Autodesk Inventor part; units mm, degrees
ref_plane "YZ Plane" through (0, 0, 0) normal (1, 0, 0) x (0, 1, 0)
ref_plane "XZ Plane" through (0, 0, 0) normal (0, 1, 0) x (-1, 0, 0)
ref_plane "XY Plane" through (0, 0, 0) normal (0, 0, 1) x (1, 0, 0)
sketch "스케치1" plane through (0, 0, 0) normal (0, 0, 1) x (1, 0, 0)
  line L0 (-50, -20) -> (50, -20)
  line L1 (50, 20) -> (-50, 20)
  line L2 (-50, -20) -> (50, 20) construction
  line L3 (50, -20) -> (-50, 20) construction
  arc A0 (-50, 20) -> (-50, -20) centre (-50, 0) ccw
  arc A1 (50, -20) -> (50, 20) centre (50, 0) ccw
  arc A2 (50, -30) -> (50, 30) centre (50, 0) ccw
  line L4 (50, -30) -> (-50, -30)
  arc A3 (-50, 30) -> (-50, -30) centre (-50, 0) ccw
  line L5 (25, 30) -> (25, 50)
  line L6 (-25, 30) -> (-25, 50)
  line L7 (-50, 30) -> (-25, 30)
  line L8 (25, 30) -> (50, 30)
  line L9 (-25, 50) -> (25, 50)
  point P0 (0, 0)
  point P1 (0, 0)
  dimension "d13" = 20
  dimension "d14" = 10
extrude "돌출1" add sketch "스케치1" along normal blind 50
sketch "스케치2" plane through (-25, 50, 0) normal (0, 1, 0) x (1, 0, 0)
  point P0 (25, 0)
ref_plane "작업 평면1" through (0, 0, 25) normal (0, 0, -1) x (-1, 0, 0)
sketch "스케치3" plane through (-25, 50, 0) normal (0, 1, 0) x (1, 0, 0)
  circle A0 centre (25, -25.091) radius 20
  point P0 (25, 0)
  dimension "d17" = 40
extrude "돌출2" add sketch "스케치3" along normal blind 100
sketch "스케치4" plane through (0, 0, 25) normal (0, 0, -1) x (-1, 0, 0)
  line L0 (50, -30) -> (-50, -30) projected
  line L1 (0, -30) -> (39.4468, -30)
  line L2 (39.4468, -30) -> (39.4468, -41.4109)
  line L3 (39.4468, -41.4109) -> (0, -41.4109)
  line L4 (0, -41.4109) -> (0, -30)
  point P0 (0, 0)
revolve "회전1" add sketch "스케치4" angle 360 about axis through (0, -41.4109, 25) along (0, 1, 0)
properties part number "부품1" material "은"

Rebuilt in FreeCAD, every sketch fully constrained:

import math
import FreeCAD as App
import Part
import Sketcher

V = App.Vector
Q = App.Units.Quantity

doc = App.newDocument("Part")
body = doc.addObject("PartDesign::Body", "Body")

# Sketch on XY plane
sketch1 = body.newObject("Sketcher::SketchObject", "Sketch")
sketch1.AttachmentSupport = (doc.getObject("XY_Plane"), [""])
sketch1.MapMode = "FlatFace"
sketch1.addGeometry(Part.LineSegment(V(-50, -30, 0), V(50, -30, 0)), False)
sketch1.addGeometry(Part.ArcOfCircle(Part.Circle(V(50, 0, 0), V(0, 0, 1), 30), math.radians(-90), math.radians(90)), False)
sketch1.addGeometry(Part.LineSegment(V(50, 30, 0), V(25, 30, 0)), False)
sketch1.addGeometry(Part.LineSegment(V(25, 30, 0), V(25, 50, 0)), False)
sketch1.addGeometry(Part.LineSegment(V(25, 50, 0), V(-25, 50, 0)), False)
sketch1.addGeometry(Part.LineSegment(V(-25, 50, 0), V(-25, 30, 0)), False)
sketch1.addGeometry(Part.LineSegment(V(-25, 30, 0), V(-50, 30, 0)), False)
sketch1.addGeometry(Part.ArcOfCircle(Part.Circle(V(-50, 0, 0), V(0, 0, 1), 30), math.radians(90), math.radians(270)), False)
sketch1.addGeometry(Part.LineSegment(V(50, -20, 0), V(-50, -20, 0)), False)
sketch1.addGeometry(Part.ArcOfCircle(Part.Circle(V(-50, 0, 0), V(0, 0, 1), 20), math.radians(90), math.radians(270)), False)
sketch1.addGeometry(Part.LineSegment(V(-50, 20, 0), V(50, 20, 0)), False)
sketch1.addGeometry(Part.ArcOfCircle(Part.Circle(V(50, 0, 0), V(0, 0, 1), 20), math.radians(-90), math.radians(90)), False)
sketch1.addConstraint(Sketcher.Constraint("Tangent", 0, 2, 1, 1))
sketch1.addConstraint(Sketcher.Constraint("Tangent", 1, 2, 2, 1))
sketch1.addConstraint(Sketcher.Constraint("Coincident", 2, 2, 3, 1))
sketch1.addConstraint(Sketcher.Constraint("Coincident", 3, 2, 4, 1))
sketch1.addConstraint(Sketcher.Constraint("Coincident", 4, 2, 5, 1))
sketch1.addConstraint(Sketcher.Constraint("Coincident", 5, 2, 6, 1))
sketch1.addConstraint(Sketcher.Constraint("Tangent", 6, 2, 7, 1))
sketch1.addConstraint(Sketcher.Constraint("Tangent", 7, 2, 0, 1))
sketch1.addConstraint(Sketcher.Constraint("Tangent", 8, 2, 9, 2))
sketch1.addConstraint(Sketcher.Constraint("Tangent", 9, 1, 10, 1))
sketch1.addConstraint(Sketcher.Constraint("Tangent", 10, 2, 11, 2))
sketch1.addConstraint(Sketcher.Constraint("Tangent", 11, 1, 8, 1))
sketch1.addConstraint(Sketcher.Constraint("Horizontal", 0))
sketch1.addConstraint(Sketcher.Constraint("Horizontal", 2))
sketch1.addConstraint(Sketcher.Constraint("Vertical", 3))
sketch1.addConstraint(Sketcher.Constraint("Horizontal", 4))
sketch1.addConstraint(Sketcher.Constraint("Vertical", 5))
sketch1.addConstraint(Sketcher.Constraint("Horizontal", 6))
sketch1.addConstraint(Sketcher.Constraint("Horizontal", 8))
sketch1.addConstraint(Sketcher.Constraint("Horizontal", 10))
sketch1.addConstraint(Sketcher.Constraint("Coincident", 9, 3, 7, 3))
sketch1.addConstraint(Sketcher.Constraint("Coincident", 11, 3, 1, 3))
sketch1.addConstraint(Sketcher.Constraint("Symmetric", 1, 3, 7, 3, -1, 1))
sketch1.addConstraint(Sketcher.Constraint("Equal", 2, 6))
sketch1.addConstraint(Sketcher.Constraint("Radius", 9, Q("20 mm")))
sketch1.addConstraint(Sketcher.Constraint("DistanceY", 3, 1, 3, 2, Q("20 mm")))
sketch1.addConstraint(Sketcher.Constraint("Radius", 1, Q("30 mm")))
sketch1.addConstraint(Sketcher.Constraint("DistanceX", 0, 1, 0, 2, Q("100 mm")))
sketch1.addConstraint(Sketcher.Constraint("DistanceX", 2, 2, 2, 1, Q("25 mm")))
pad1 = body.newObject("PartDesign::Pad", "Pad")
pad1.Profile = sketch1
pad1.Length = 50

# Sketch on XZ plane
sketch2 = body.newObject("Sketcher::SketchObject", "Sketch001")
sketch2.AttachmentSupport = (doc.getObject("XZ_Plane"), [""])
sketch2.MapMode = "FlatFace"
sketch2.AttachmentOffset = App.Placement(V(0, 0, -50), App.Rotation())
sketch2.addGeometry(Part.Circle(V(0, 25, 0), V(0, 0, 1), 20), False)
sketch2.addConstraint(Sketcher.Constraint("PointOnObject", 0, 3, -2))
sketch2.addConstraint(Sketcher.Constraint("Diameter", 0, Q("40 mm")))
sketch2.addConstraint(Sketcher.Constraint("DistanceY", -1, 1, 0, 3, Q("25.091 mm")))
pad2 = body.newObject("PartDesign::Pad", "Pad001")
pad2.Profile = sketch2
pad2.Length = 100
pad2.Reversed = True

# Sketch on XY plane
sketch3 = body.newObject("Sketcher::SketchObject", "Sketch002")
sketch3.AttachmentSupport = (doc.getObject("XY_Plane"), [""])
sketch3.MapMode = "FlatFace"
sketch3.AttachmentOffset = App.Placement(V(0, 0, 25), App.Rotation())
sketch3.addGeometry(Part.LineSegment(V(-39, -41, 0), V(-39, -30, 0)), False)
sketch3.addGeometry(Part.LineSegment(V(-39, -30, 0), V(0, -30, 0)), False)
sketch3.addGeometry(Part.LineSegment(V(0, -30, 0), V(0, -41, 0)), False)
sketch3.addGeometry(Part.LineSegment(V(0, -41, 0), V(-39, -41, 0)), False)
sketch3.addConstraint(Sketcher.Constraint("Coincident", 0, 2, 1, 1))
sketch3.addConstraint(Sketcher.Constraint("Coincident", 1, 2, 2, 1))
sketch3.addConstraint(Sketcher.Constraint("Coincident", 2, 2, 3, 1))
sketch3.addConstraint(Sketcher.Constraint("Coincident", 3, 2, 0, 1))
sketch3.addConstraint(Sketcher.Constraint("Vertical", 0))
sketch3.addConstraint(Sketcher.Constraint("Horizontal", 1))
sketch3.addConstraint(Sketcher.Constraint("Vertical", 2))
sketch3.addConstraint(Sketcher.Constraint("Horizontal", 3))
sketch3.addConstraint(Sketcher.Constraint("PointOnObject", 1, 2, -2))
sketch3.addConstraint(Sketcher.Constraint("DistanceY", 0, 2, -1, 1, Q("30 mm")))
sketch3.addConstraint(Sketcher.Constraint("DistanceY", 0, 1, 0, 2, Q("11.411 mm")))
sketch3.addConstraint(Sketcher.Constraint("DistanceX", 1, 1, 1, 2, Q("39.4468 mm")))
revolution = body.newObject("PartDesign::Revolution", "Revolution")
revolution.Profile = sketch3
revolution.ReferenceAxis = (sketch3, ["V_Axis"])
revolution.Angle = 360

doc.recompute()
